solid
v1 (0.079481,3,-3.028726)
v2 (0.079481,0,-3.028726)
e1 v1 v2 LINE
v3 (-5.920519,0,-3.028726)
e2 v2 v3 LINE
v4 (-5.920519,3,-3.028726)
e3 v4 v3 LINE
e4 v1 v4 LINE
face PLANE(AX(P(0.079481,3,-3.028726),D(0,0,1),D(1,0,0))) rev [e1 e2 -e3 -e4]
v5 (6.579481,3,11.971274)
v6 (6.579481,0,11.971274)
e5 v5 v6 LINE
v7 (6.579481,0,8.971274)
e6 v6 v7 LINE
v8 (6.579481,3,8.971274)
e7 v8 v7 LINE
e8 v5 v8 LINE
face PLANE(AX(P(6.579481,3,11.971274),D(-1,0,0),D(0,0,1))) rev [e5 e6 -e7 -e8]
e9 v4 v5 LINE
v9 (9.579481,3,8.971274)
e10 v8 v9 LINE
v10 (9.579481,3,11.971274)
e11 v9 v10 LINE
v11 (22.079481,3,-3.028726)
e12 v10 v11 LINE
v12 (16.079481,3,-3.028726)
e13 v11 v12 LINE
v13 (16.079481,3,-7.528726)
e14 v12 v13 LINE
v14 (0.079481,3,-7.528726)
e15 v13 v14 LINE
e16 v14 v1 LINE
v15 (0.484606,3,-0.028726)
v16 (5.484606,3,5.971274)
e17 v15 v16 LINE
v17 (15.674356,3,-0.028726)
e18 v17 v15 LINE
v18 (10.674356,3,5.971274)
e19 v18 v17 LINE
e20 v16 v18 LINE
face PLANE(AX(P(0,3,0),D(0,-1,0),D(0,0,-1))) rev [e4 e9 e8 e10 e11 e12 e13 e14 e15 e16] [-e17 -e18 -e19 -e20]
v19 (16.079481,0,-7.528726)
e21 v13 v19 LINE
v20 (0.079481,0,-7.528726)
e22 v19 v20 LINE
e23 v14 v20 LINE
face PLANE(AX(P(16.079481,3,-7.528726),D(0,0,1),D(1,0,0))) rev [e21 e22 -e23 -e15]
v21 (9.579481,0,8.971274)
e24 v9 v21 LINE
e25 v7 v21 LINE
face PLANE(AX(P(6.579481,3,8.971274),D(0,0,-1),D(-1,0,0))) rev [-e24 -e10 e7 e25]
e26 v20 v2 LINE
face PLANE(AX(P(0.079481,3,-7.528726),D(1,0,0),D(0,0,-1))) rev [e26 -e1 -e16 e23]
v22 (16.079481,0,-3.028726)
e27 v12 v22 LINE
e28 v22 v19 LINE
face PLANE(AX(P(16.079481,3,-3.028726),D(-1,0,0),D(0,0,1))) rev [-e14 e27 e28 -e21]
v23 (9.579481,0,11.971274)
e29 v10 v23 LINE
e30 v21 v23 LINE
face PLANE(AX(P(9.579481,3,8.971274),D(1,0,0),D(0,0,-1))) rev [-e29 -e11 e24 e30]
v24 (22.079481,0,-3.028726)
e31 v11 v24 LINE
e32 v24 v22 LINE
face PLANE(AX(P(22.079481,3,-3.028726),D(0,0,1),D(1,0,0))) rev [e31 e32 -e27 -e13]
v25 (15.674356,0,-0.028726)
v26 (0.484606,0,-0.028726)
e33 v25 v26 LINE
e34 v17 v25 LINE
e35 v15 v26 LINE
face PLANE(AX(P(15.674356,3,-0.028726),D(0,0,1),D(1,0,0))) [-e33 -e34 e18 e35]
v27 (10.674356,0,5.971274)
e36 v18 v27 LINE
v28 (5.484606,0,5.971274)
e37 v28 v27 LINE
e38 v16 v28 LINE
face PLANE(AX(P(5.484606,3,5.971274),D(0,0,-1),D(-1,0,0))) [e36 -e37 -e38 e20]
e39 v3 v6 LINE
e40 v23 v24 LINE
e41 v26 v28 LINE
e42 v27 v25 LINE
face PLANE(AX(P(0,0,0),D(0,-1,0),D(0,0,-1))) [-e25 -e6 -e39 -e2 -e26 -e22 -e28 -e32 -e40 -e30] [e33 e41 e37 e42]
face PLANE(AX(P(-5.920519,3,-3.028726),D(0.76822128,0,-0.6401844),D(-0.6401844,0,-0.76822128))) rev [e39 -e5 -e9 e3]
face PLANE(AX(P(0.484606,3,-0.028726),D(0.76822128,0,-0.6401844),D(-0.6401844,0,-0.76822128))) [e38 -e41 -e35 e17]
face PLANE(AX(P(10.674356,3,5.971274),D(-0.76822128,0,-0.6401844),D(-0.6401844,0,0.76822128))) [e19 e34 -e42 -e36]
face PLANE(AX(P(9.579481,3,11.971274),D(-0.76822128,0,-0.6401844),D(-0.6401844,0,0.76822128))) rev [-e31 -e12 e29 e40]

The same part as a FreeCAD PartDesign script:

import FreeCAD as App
import Part
import Sketcher

V = App.Vector

doc = App.newDocument("Part")
body = doc.addObject("PartDesign::Body", "Body")

# Sketch on XZ plane
sketch1 = body.newObject("Sketcher::SketchObject", "Sketch")
sketch1.AttachmentSupport = (doc.getObject("XZ_Plane"), [""])
sketch1.MapMode = "FlatFace"
sketch1.addGeometry([
    Part.LineSegment(V(22.079481, -3.028726, 0), V(16.079481, -3.028726, 0)),  # 0
    Part.LineSegment(V(16.079481, -3.028726, 0), V(16.079481, -7.528726, 0)),  # 1
    Part.LineSegment(V(16.079481, -7.528726, 0), V(0.079481, -7.528726, 0)),  # 2
    Part.LineSegment(V(0.079481, -7.528726, 0), V(0.079481, -3.028726, 0)),  # 3
    Part.LineSegment(V(0.079481, -3.028726, 0), V(-5.920519, -3.028726, 0)),  # 4
    Part.LineSegment(V(-5.920519, -3.028726, 0), V(6.579481, 11.971274, 0)),  # 5
    Part.LineSegment(V(6.579481, 11.971274, 0), V(6.579481, 8.971274, 0)),  # 6
    Part.LineSegment(V(6.579481, 8.971274, 0), V(9.579481, 8.971274, 0)),  # 7
    Part.LineSegment(V(9.579481, 8.971274, 0), V(9.579481, 11.971274, 0)),  # 8
    Part.LineSegment(V(9.579481, 11.971274, 0), V(22.079481, -3.028726, 0)),  # 9
    Part.LineSegment(V(0.484606, -0.028726, 0), V(15.674356, -0.028726, 0)),  # 10
    Part.LineSegment(V(15.674356, -0.028726, 0), V(10.674356, 5.971274, 0)),  # 11
    Part.LineSegment(V(10.674356, 5.971274, 0), V(5.484606, 5.971274, 0)),  # 12
    Part.LineSegment(V(5.484606, 5.971274, 0), V(0.484606, -0.028726, 0)),  # 13
], False)
sketch1.addConstraint([
    Sketcher.Constraint("Coincident", 0, 2, 1, 1),
    Sketcher.Constraint("Coincident", 1, 2, 2, 1),
    Sketcher.Constraint("Coincident", 2, 2, 3, 1),
    Sketcher.Constraint("Coincident", 3, 2, 4, 1),
    Sketcher.Constraint("Coincident", 4, 2, 5, 1),
    Sketcher.Constraint("Coincident", 5, 2, 6, 1),
    Sketcher.Constraint("Coincident", 6, 2, 7, 1),
    Sketcher.Constraint("Coincident", 7, 2, 8, 1),
    Sketcher.Constraint("Coincident", 8, 2, 9, 1),
    Sketcher.Constraint("Coincident", 9, 2, 0, 1),
    Sketcher.Constraint("Coincident", 10, 2, 11, 1),
    Sketcher.Constraint("Coincident", 11, 2, 12, 1),
    Sketcher.Constraint("Coincident", 12, 2, 13, 1),
    Sketcher.Constraint("Coincident", 13, 2, 10, 1),
    Sketcher.Constraint("Horizontal", 0),
    Sketcher.Constraint("Vertical", 1),
    Sketcher.Constraint("Horizontal", 2),
    Sketcher.Constraint("Vertical", 3),
    Sketcher.Constraint("Horizontal", 4),
    Sketcher.Constraint("Vertical", 6),
    Sketcher.Constraint("Horizontal", 7),
    Sketcher.Constraint("Vertical", 8),
    Sketcher.Constraint("Horizontal", 10),
    Sketcher.Constraint("Horizontal", 12),
    Sketcher.Constraint("Parallel", 9, 11),
    Sketcher.Constraint("Parallel", 5, 13),
    Sketcher.Constraint("Horizontal", 0, 2, 3, 2),
    Sketcher.Constraint("Horizontal", 5, 2, 8, 2),
    Sketcher.Constraint("Equal", 0, 4),
    Sketcher.Constraint("Equal", 7, 6),
    Sketcher.Constraint("Equal", 5, 9),
    Sketcher.Constraint("DistanceX", 0, 2, 0, 1, 6.0),
    Sketcher.Constraint("DistanceX", 2, 2, 2, 1, 16.0),
    Sketcher.Constraint("DistanceX", 7, 1, 7, 2, 3.0),
    Sketcher.Constraint("DistanceY", 1, 2, 1, 1, 4.5),
    Sketcher.Constraint("DistanceY", 3, 2, 5, 2, 15.0),
    Sketcher.Constraint("DistanceY", 0, 2, 10, 2, 3.0),
    Sketcher.Constraint("DistanceY", 11, 2, 7, 2, 3.0),
    Sketcher.Constraint("DistanceX", 10, 1, 10, 2, 15.18975),
    Sketcher.Constraint("DistanceX", -1, 1, 0, 2, 16.079481),
    Sketcher.Constraint("DistanceY", 0, 2, -1, 1, 3.028726),
    Sketcher.Constraint("DistanceX", -1, 1, 10, 2, 15.674356),
])
pad1 = body.newObject("PartDesign::Pad", "Pad")
pad1.Profile = sketch1
pad1.Length = 3
pad1.Reversed = True

doc.recompute()
